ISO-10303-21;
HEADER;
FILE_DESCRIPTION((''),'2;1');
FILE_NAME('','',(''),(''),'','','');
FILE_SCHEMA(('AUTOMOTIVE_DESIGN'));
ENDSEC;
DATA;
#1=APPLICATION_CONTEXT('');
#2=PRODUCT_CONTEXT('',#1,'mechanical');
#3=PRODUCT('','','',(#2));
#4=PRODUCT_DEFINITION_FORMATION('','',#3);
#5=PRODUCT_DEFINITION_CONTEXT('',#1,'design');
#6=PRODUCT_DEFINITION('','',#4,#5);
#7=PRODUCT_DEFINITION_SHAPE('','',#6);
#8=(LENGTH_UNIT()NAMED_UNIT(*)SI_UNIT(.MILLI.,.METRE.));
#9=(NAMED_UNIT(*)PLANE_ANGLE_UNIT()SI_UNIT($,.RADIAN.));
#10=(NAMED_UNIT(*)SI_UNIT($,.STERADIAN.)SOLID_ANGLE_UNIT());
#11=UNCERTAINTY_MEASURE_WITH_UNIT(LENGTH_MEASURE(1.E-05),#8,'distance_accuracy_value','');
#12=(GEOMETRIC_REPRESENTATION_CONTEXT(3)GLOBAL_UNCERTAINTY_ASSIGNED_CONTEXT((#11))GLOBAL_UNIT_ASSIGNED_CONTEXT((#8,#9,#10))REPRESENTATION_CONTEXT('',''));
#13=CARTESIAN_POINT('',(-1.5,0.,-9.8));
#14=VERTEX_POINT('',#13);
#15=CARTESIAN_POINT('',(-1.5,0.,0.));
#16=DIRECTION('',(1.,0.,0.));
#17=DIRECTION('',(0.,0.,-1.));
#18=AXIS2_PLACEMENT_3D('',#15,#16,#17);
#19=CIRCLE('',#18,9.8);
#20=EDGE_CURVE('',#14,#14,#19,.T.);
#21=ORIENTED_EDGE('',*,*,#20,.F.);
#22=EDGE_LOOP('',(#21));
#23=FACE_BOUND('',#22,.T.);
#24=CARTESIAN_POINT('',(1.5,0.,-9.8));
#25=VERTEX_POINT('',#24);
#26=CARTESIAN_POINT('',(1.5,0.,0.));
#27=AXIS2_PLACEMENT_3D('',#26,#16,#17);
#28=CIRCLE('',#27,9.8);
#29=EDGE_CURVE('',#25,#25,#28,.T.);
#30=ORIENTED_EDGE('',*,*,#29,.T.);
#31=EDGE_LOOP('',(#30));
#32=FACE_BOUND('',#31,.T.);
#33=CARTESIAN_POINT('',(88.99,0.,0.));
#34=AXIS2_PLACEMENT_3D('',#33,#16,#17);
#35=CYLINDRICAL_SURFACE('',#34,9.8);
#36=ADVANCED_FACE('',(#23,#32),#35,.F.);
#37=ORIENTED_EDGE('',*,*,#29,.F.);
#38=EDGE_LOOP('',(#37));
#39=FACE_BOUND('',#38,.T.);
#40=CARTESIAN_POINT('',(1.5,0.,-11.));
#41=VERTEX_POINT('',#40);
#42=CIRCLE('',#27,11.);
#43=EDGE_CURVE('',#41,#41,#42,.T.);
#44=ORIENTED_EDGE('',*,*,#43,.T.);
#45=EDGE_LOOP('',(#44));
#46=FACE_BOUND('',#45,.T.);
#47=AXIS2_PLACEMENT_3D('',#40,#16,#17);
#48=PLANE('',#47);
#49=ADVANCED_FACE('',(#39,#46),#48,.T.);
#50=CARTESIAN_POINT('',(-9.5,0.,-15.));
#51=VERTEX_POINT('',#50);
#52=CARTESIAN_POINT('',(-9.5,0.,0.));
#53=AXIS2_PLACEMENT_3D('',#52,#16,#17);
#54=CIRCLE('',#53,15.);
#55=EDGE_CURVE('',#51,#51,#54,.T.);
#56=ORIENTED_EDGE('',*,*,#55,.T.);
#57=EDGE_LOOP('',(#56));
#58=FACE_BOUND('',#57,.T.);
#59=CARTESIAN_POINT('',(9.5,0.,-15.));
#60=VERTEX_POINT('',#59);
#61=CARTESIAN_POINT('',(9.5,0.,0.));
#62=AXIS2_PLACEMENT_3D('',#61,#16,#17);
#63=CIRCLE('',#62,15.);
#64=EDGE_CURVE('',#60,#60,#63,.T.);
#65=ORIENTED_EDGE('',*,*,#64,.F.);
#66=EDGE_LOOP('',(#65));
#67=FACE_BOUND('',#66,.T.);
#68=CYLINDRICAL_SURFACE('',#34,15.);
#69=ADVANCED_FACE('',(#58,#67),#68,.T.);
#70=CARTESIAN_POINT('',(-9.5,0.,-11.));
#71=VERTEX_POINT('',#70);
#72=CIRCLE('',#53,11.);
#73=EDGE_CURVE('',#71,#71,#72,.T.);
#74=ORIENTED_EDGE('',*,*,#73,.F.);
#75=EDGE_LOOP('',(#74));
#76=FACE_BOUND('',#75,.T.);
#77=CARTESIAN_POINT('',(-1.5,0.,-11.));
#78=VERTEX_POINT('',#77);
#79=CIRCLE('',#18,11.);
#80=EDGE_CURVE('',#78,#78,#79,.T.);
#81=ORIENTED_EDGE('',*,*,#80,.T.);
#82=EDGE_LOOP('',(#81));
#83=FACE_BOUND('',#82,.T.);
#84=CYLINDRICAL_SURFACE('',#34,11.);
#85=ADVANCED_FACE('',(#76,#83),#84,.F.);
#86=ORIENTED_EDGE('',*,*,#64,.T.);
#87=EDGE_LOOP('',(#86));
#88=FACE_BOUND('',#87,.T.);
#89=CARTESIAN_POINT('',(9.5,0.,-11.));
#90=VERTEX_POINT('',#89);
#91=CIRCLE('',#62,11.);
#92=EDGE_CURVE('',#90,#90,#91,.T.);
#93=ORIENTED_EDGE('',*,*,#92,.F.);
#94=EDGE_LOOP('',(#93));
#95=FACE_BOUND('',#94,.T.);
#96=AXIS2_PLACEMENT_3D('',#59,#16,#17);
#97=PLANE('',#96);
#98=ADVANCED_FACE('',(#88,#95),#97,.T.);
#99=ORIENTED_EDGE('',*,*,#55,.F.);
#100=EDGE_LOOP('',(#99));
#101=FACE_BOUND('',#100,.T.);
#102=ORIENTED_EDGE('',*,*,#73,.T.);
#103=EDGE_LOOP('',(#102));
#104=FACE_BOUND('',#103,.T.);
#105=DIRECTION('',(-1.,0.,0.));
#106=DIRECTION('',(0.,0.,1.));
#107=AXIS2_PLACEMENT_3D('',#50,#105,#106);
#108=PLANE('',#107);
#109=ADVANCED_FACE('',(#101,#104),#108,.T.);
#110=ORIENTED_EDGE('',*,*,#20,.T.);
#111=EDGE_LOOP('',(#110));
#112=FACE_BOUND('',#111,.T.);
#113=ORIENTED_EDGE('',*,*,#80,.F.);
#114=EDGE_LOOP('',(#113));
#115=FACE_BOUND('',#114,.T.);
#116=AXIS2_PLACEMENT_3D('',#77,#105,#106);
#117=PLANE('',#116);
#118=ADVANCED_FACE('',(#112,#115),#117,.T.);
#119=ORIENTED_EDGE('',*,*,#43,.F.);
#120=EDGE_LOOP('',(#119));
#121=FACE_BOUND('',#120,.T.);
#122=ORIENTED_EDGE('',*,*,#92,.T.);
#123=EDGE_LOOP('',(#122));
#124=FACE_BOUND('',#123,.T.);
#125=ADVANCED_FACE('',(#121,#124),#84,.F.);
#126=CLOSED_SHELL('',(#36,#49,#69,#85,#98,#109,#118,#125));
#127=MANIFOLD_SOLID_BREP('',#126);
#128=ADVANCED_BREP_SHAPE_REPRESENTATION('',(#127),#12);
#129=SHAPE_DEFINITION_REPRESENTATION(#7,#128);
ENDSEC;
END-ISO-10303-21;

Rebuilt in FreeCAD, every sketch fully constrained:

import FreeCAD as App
import Part
import Sketcher

V = App.Vector
Q = App.Units.Quantity


def add_polygon(sketch, points):
    """Adds a closed chain of lines whose ends are joined by coincident constraints."""
    first, n = sketch.GeometryCount, len(points)
    for a, b in zip(points, points[1:] + points[:1]):
        sketch.addGeometry(Part.LineSegment(App.Vector(*a, 0), App.Vector(*b, 0)), False)
    for i in range(n):
        sketch.addConstraint(Sketcher.Constraint("Coincident", first + i, 2, first + (i + 1) % n, 1))

doc = App.newDocument("Part")
params = doc.addObject("Spreadsheet::Sheet", "Params")
for row, (alias, value) in enumerate([
    ("sketch1_width", "19 mm"),
    ("sketch1_width2", "8 mm"),
    ("sketch1_height", "4 mm"),
    ("sketch1_height2", "1.2 mm"),
    ("revolution_angle", "360 deg"),
], start=1):
    params.set(f"A{row}", alias)
    params.set(f"B{row}", "=" + value)
    params.setAlias(f"B{row}", alias)

body = doc.addObject("PartDesign::Body", "Body")

sketch1 = body.newObject("Sketcher::SketchObject", "Sketch")
sketch1.AttachmentSupport = (doc.getObject("XZ_Plane"), [""])
sketch1.MapMode = "FlatFace"
add_polygon(sketch1, [(9.5, -15), (-9.5, -15), (-9.5, -11), (-1.5, -11), (-1.5, -9.8), (1.5, -9.8), (1.5, -11), (9.5, -11)])
sketch1.addConstraint([
    Sketcher.Constraint("Horizontal", 0),
    Sketcher.Constraint("Vertical", 1),
    Sketcher.Constraint("Horizontal", 2),
    Sketcher.Constraint("Vertical", 3),
    Sketcher.Constraint("Horizontal", 4),
    Sketcher.Constraint("Vertical", 5),
    Sketcher.Constraint("Horizontal", 6),
    Sketcher.Constraint("Vertical", 7),
    Sketcher.Constraint("Symmetric", 2, 2, 5, 2, -2),
    Sketcher.Constraint("Equal", 2, 6),
    Sketcher.Constraint("DistanceX", 0, 2, 0, 1, Q("19 mm")),
    Sketcher.Constraint("DistanceX", 2, 1, 2, 2, Q("8 mm")),
    Sketcher.Constraint("DistanceY", 1, 1, 1, 2, Q("4 mm")),
    Sketcher.Constraint("DistanceY", 3, 1, 3, 2, Q("1.2 mm")),
    Sketcher.Constraint("DistanceY", 0, 2, -1, 1, Q("15 mm")),
])
sketch1.setExpression("Constraints[18]", "Params.sketch1_width")
sketch1.setExpression("Constraints[19]", "Params.sketch1_width2")
sketch1.setExpression("Constraints[20]", "Params.sketch1_height")
sketch1.setExpression("Constraints[21]", "Params.sketch1_height2")
revolution = body.newObject("PartDesign::Revolution", "Revolution")
revolution.Profile = sketch1
revolution.ReferenceAxis = (sketch1, ["H_Axis"])
revolution.setExpression("Angle", "Params.revolution_angle")

doc.recompute()
